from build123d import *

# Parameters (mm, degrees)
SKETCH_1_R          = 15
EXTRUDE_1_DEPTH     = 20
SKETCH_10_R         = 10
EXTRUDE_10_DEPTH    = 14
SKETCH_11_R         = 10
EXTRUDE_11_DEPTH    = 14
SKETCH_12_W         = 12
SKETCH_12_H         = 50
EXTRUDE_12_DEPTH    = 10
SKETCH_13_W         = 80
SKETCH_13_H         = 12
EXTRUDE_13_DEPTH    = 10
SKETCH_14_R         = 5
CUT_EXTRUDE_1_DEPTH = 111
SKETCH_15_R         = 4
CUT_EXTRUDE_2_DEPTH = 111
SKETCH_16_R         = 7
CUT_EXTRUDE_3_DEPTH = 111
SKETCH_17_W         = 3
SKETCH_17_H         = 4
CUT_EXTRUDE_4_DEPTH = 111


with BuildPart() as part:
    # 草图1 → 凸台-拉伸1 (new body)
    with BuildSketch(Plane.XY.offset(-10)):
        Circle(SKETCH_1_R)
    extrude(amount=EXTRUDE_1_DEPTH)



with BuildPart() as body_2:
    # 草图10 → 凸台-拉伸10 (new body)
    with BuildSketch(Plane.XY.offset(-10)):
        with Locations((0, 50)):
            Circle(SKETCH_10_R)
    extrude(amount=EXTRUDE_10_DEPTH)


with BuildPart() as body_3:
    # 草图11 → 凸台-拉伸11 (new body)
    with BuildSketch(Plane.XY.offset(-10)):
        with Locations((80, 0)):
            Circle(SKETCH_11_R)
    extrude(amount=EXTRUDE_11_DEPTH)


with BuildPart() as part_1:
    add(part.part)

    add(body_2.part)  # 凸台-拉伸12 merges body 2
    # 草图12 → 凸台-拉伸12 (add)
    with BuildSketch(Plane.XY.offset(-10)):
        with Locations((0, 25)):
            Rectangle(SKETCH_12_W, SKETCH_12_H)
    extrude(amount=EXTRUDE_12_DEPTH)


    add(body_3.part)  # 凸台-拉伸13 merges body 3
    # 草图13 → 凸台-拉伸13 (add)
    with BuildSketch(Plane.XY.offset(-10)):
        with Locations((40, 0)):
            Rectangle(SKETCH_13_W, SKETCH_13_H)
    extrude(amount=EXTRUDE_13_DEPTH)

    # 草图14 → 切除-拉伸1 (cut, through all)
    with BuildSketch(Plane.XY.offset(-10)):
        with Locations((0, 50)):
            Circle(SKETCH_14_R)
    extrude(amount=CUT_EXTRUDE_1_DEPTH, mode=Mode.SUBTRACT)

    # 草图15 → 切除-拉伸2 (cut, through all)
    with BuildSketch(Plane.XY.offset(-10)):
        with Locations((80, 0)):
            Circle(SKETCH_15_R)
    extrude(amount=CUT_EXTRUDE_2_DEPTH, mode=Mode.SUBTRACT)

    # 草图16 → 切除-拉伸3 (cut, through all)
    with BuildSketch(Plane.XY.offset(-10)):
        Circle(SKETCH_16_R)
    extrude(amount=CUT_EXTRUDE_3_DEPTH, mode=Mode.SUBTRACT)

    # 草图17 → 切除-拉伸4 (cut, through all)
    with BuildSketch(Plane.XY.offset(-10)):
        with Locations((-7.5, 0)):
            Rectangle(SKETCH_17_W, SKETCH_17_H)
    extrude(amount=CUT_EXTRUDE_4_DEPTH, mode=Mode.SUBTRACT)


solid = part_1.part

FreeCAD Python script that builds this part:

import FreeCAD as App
import Part
import Sketcher

doc = App.newDocument("Part")
params = doc.addObject("Spreadsheet::Sheet", "Params")
for row, (alias, value) in enumerate([
    ("sketch1_diameter", "30 mm"),
    ("pad1_length", "20 mm"),
    ("sketch2_diameter", "20 mm"),
    ("pad2_length", "14 mm"),
    ("sketch3_diameter", "20 mm"),
    ("pad3_length", "14 mm"),
    ("sketch4_width", "12 mm"),
    ("sketch4_height", "50 mm"),
    ("pad4_length", "10 mm"),
    ("sketch5_width", "80 mm"),
    ("sketch5_height", "12 mm"),
    ("pad5_length", "10 mm"),
    ("sketch6_diameter", "10 mm"),
    ("sketch7_diameter", "8 mm"),
    ("sketch8_diameter", "14 mm"),
    ("sketch9_width", "3 mm"),
    ("sketch9_height", "4 mm"),
], start=1):
    params.set(f"A{row}", alias)
    params.set(f"B{row}", "=" + value)
    params.setAlias(f"B{row}", alias)

body = doc.addObject("PartDesign::Body", "Body")

sketch1 = body.newObject("Sketcher::SketchObject", "Sketch")
sketch1.AttachmentSupport = (doc.getObject("XY_Plane"), [""])
sketch1.MapMode = "FlatFace"
sketch1.AttachmentOffset = App.Placement(App.Vector(0, 0, -10), App.Rotation())
sketch1.addGeometry(Part.Circle(App.Vector(0, 0, 0), App.Vector(0, 0, 1), 15), False)
sketch1.addConstraint(Sketcher.Constraint("Coincident", 0, 3, -1, 1))
sketch1.addConstraint(Sketcher.Constraint("Diameter", 0, 30.0))
sketch1.setExpression("Constraints[1]", "Params.sketch1_diameter")
pad1 = body.newObject("PartDesign::Pad", "Pad")
pad1.Profile = sketch1
pad1.setExpression("Length", "Params.pad1_length")
body2 = doc.addObject("PartDesign::Body", "Body001")

sketch2 = body2.newObject("Sketcher::SketchObject", "Sketch001")
sketch2.AttachmentSupport = (doc.getObject("XY_Plane001"), [""])
sketch2.MapMode = "FlatFace"
sketch2.AttachmentOffset = App.Placement(App.Vector(0, 0, -10), App.Rotation())
sketch2.addGeometry(Part.Circle(App.Vector(0, 50, 0), App.Vector(0, 0, 1), 10), False)
sketch2.addConstraint(Sketcher.Constraint("PointOnObject", 0, 3, -2))
sketch2.addConstraint(Sketcher.Constraint("Diameter", 0, 20.0))
sketch2.addConstraint(Sketcher.Constraint("DistanceY", -1, 1, 0, 3, 50.0))
sketch2.setExpression("Constraints[1]", "Params.sketch2_diameter")
pad2 = body2.newObject("PartDesign::Pad", "Pad001")
pad2.Profile = sketch2
pad2.setExpression("Length", "Params.pad2_length")
body3 = doc.addObject("PartDesign::Body", "Body002")

sketch3 = body3.newObject("Sketcher::SketchObject", "Sketch002")
sketch3.AttachmentSupport = (doc.getObject("XY_Plane002"), [""])
sketch3.MapMode = "FlatFace"
sketch3.AttachmentOffset = App.Placement(App.Vector(0, 0, -10), App.Rotation())
sketch3.addGeometry(Part.Circle(App.Vector(80, 0, 0), App.Vector(0, 0, 1), 10), False)
sketch3.addConstraint(Sketcher.Constraint("PointOnObject", 0, 3, -1))
sketch3.addConstraint(Sketcher.Constraint("Diameter", 0, 20.0))
sketch3.addConstraint(Sketcher.Constraint("DistanceX", -1, 1, 0, 3, 80.0))
sketch3.setExpression("Constraints[1]", "Params.sketch3_diameter")
pad3 = body3.newObject("PartDesign::Pad", "Pad002")
pad3.Profile = sketch3
pad3.setExpression("Length", "Params.pad3_length")
body.AllowCompound = True
doc.recompute()

boolean = body.newObject("PartDesign::Boolean", "Boolean")
boolean.Type = "Fuse"
boolean.addObjects([body2])

sketch4 = body.newObject("Sketcher::SketchObject", "Sketch003")
sketch4.AttachmentSupport = (doc.getObject("XY_Plane"), [""])
sketch4.MapMode = "FlatFace"
sketch4.AttachmentOffset = App.Placement(App.Vector(0, 0, -10), App.Rotation())
sketch4.addGeometry(Part.LineSegment(App.Vector(-6, 50, 0), App.Vector(-6, 0, 0)), False)
sketch4.addGeometry(Part.LineSegment(App.Vector(-6, 0, 0), App.Vector(6, 0, 0)), False)
sketch4.addGeometry(Part.LineSegment(App.Vector(6, 0, 0), App.Vector(6, 50, 0)), False)
sketch4.addGeometry(Part.LineSegment(App.Vector(6, 50, 0), App.Vector(-6, 50, 0)), False)
sketch4.addConstraint(Sketcher.Constraint("Coincident", 0, 2, 1, 1))
sketch4.addConstraint(Sketcher.Constraint("Coincident", 1, 2, 2, 1))
sketch4.addConstraint(Sketcher.Constraint("Coincident", 2, 2, 3, 1))
sketch4.addConstraint(Sketcher.Constraint("Coincident", 3, 2, 0, 1))
sketch4.addConstraint(Sketcher.Constraint("Vertical", 0))
sketch4.addConstraint(Sketcher.Constraint("Horizontal", 1))
sketch4.addConstraint(Sketcher.Constraint("Vertical", 2))
sketch4.addConstraint(Sketcher.Constraint("Horizontal", 3))
sketch4.addConstraint(Sketcher.Constraint("Symmetric", 0, 2, 1, 2, -1, 1))
sketch4.addConstraint(Sketcher.Constraint("DistanceX", 1, 1, 1, 2, 12.0))
sketch4.addConstraint(Sketcher.Constraint("DistanceY", 0, 2, 0, 1, 50.0))
sketch4.setExpression("Constraints[9]", "Params.sketch4_width")
sketch4.setExpression("Constraints[10]", "Params.sketch4_height")
pad4 = body.newObject("PartDesign::Pad", "Pad003")
pad4.Profile = sketch4
pad4.setExpression("Length", "Params.pad4_length")
doc.recompute()

boolean2 = body.newObject("PartDesign::Boolean", "Boolean001")
boolean2.Type = "Fuse"
boolean2.addObjects([body3])

sketch5 = body.newObject("Sketcher::SketchObject", "Sketch004")
sketch5.AttachmentSupport = (doc.getObject("XY_Plane"), [""])
sketch5.MapMode = "FlatFace"
sketch5.AttachmentOffset = App.Placement(App.Vector(0, 0, -10), App.Rotation())
sketch5.addGeometry(Part.LineSegment(App.Vector(0, 6, 0), App.Vector(0, -6, 0)), False)
sketch5.addGeometry(Part.LineSegment(App.Vector(0, -6, 0), App.Vector(80, -6, 0)), False)
sketch5.addGeometry(Part.LineSegment(App.Vector(80, -6, 0), App.Vector(80, 6, 0)), False)
sketch5.addGeometry(Part.LineSegment(App.Vector(80, 6, 0), App.Vector(0, 6, 0)), False)
sketch5.addConstraint(Sketcher.Constraint("Coincident", 0, 2, 1, 1))
sketch5.addConstraint(Sketcher.Constraint("Coincident", 1, 2, 2, 1))
sketch5.addConstraint(Sketcher.Constraint("Coincident", 2, 2, 3, 1))
sketch5.addConstraint(Sketcher.Constraint("Coincident", 3, 2, 0, 1))
sketch5.addConstraint(Sketcher.Constraint("Vertical", 0))
sketch5.addConstraint(Sketcher.Constraint("Horizontal", 1))
sketch5.addConstraint(Sketcher.Constraint("Vertical", 2))
sketch5.addConstraint(Sketcher.Constraint("Horizontal", 3))
sketch5.addConstraint(Sketcher.Constraint("Symmetric", 0, 2, 3, 2, -1, 1))
sketch5.addConstraint(Sketcher.Constraint("DistanceX", 1, 1, 1, 2, 80.0))
sketch5.addConstraint(Sketcher.Constraint("DistanceY", 0, 2, 0, 1, 12.0))
sketch5.setExpression("Constraints[9]", "Params.sketch5_width")
sketch5.setExpression("Constraints[10]", "Params.sketch5_height")
pad5 = body.newObject("PartDesign::Pad", "Pad004")
pad5.Profile = sketch5
pad5.setExpression("Length", "Params.pad5_length")

sketch6 = body.newObject("Sketcher::SketchObject", "Sketch005")
sketch6.AttachmentSupport = (doc.getObject("XY_Plane"), [""])
sketch6.MapMode = "FlatFace"
sketch6.AttachmentOffset = App.Placement(App.Vector(0, 0, -10), App.Rotation())
sketch6.addGeometry(Part.Circle(App.Vector(0, 50, 0), App.Vector(0, 0, 1), 5), False)
sketch6.addConstraint(Sketcher.Constraint("PointOnObject", 0, 3, -2))
sketch6.addConstraint(Sketcher.Constraint("Diameter", 0, 10.0))
sketch6.addConstraint(Sketcher.Constraint("DistanceY", -1, 1, 0, 3, 50.0))
sketch6.setExpression("Constraints[1]", "Params.sketch6_diameter")
pocket1 = body.newObject("PartDesign::Pocket", "Pocket")
pocket1.Profile = sketch6
pocket1.Type = "ThroughAll"
pocket1.Reversed = True

sketch7 = body.newObject("Sketcher::SketchObject", "Sketch006")
sketch7.AttachmentSupport = (doc.getObject("XY_Plane"), [""])
sketch7.MapMode = "FlatFace"
sketch7.AttachmentOffset = App.Placement(App.Vector(0, 0, -10), App.Rotation())
sketch7.addGeometry(Part.Circle(App.Vector(80, 0, 0), App.Vector(0, 0, 1), 4), False)
sketch7.addConstraint(Sketcher.Constraint("PointOnObject", 0, 3, -1))
sketch7.addConstraint(Sketcher.Constraint("Diameter", 0, 8.0))
sketch7.addConstraint(Sketcher.Constraint("DistanceX", -1, 1, 0, 3, 80.0))
sketch7.setExpression("Constraints[1]", "Params.sketch7_diameter")
pocket2 = body.newObject("PartDesign::Pocket", "Pocket001")
pocket2.Profile = sketch7
pocket2.Type = "ThroughAll"
pocket2.Reversed = True

sketch8 = body.newObject("Sketcher::SketchObject", "Sketch007")
sketch8.AttachmentSupport = (doc.getObject("XY_Plane"), [""])
sketch8.MapMode = "FlatFace"
sketch8.AttachmentOffset = App.Placement(App.Vector(0, 0, -10), App.Rotation())
sketch8.addGeometry(Part.Circle(App.Vector(0, 0, 0), App.Vector(0, 0, 1), 7), False)
sketch8.addConstraint(Sketcher.Constraint("Coincident", 0, 3, -1, 1))
sketch8.addConstraint(Sketcher.Constraint("Diameter", 0, 14.0))
sketch8.setExpression("Constraints[1]", "Params.sketch8_diameter")
pocket3 = body.newObject("PartDesign::Pocket", "Pocket002")
pocket3.Profile = sketch8
pocket3.Type = "ThroughAll"
pocket3.Reversed = True

sketch9 = body.newObject("Sketcher::SketchObject", "Sketch008")
sketch9.AttachmentSupport = (doc.getObject("XY_Plane"), [""])
sketch9.MapMode = "FlatFace"
sketch9.AttachmentOffset = App.Placement(App.Vector(0, 0, -10), App.Rotation())
sketch9.addGeometry(Part.LineSegment(App.Vector(-9, 2, 0), App.Vector(-9, -2, 0)), False)
sketch9.addGeometry(Part.LineSegment(App.Vector(-9, -2, 0), App.Vector(-6, -2, 0)), False)
sketch9.addGeometry(Part.LineSegment(App.Vector(-6, -2, 0), App.Vector(-6, 2, 0)), False)
sketch9.addGeometry(Part.LineSegment(App.Vector(-6, 2, 0), App.Vector(-9, 2, 0)), False)
sketch9.addConstraint(Sketcher.Constraint("Coincident", 0, 2, 1, 1))
sketch9.addConstraint(Sketcher.Constraint("Coincident", 1, 2, 2, 1))
sketch9.addConstraint(Sketcher.Constraint("Coincident", 2, 2, 3, 1))
sketch9.addConstraint(Sketcher.Constraint("Coincident", 3, 2, 0, 1))
sketch9.addConstraint(Sketcher.Constraint("Vertical", 0))
sketch9.addConstraint(Sketcher.Constraint("Horizontal", 1))
sketch9.addConstraint(Sketcher.Constraint("Vertical", 2))
sketch9.addConstraint(Sketcher.Constraint("Horizontal", 3))
sketch9.addConstraint(Sketcher.Constraint("DistanceX", 1, 1, 1, 2, 3.0))
sketch9.addConstraint(Sketcher.Constraint("DistanceY", 0, 2, 0, 1, 4.0))
sketch9.addConstraint(Sketcher.Constraint("DistanceX", 0, 2, -1, 1, 9.0))
sketch9.addConstraint(Sketcher.Constraint("DistanceY", 0, 2, -1, 1, 2.0))
sketch9.setExpression("Constraints[8]", "Params.sketch9_width")
sketch9.setExpression("Constraints[9]", "Params.sketch9_height")
pocket4 = body.newObject("PartDesign::Pocket", "Pocket003")
pocket4.Profile = sketch9
pocket4.Type = "ThroughAll"
pocket4.Reversed = True

doc.recompute()
